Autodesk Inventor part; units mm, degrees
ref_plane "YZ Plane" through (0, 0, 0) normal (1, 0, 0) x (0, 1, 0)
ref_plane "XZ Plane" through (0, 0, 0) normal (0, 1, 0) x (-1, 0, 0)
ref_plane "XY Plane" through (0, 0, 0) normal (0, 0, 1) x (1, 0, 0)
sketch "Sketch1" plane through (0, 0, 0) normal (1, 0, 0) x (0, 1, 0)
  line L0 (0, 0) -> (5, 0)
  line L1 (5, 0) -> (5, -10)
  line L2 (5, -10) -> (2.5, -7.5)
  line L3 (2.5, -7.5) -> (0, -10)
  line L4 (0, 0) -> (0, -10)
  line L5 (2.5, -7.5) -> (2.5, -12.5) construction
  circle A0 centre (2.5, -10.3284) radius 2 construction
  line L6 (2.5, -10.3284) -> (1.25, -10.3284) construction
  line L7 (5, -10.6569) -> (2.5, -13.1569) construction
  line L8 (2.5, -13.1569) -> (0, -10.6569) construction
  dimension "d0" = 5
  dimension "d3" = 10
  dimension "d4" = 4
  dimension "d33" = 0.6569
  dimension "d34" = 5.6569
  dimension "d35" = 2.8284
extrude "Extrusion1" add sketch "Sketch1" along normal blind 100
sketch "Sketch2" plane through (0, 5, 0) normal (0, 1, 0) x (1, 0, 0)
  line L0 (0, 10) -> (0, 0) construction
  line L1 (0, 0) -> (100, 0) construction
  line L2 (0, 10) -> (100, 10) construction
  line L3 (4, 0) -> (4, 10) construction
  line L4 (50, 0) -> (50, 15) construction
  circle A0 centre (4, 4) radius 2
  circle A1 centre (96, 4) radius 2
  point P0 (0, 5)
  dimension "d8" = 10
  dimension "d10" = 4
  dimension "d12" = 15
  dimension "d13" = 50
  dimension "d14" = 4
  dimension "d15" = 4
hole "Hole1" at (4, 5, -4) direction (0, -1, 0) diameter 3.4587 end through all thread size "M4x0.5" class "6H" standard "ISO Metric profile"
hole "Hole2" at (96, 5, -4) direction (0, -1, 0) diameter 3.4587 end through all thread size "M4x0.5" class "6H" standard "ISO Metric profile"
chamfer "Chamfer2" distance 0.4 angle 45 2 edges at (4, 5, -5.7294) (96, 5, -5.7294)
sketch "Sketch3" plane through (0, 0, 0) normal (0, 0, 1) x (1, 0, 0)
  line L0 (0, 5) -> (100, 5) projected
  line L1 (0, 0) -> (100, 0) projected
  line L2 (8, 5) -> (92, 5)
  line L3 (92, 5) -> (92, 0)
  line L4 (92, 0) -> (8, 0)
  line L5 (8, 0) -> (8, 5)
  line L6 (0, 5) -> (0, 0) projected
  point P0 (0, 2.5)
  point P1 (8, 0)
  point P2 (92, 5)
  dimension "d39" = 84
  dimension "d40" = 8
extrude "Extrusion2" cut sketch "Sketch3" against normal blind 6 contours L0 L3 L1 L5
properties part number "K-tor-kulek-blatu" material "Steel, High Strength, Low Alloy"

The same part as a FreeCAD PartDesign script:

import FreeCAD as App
import Part
import Sketcher
Q = App.Units.Quantity


def edges_at(feature, points):
    """Names of the edges that pass closest to the given points."""
    edges = feature.Shape.Edges
    near = lambda p: min(range(len(edges)), key=lambda i: edges[i].distToShape(Part.Vertex(*p))[0])
    return sorted({f"Edge{near(p) + 1}" for p in points})

doc = App.newDocument("Part")
params = doc.addObject("Spreadsheet::Sheet", "Params")
for row, (alias, value) in enumerate([
    ("sketch1_width", "5 mm"),
    ("sketch1_height", "10 mm"),
    ("pad1_length", "100 mm"),
    ("hole_diameter", "3.4587 mm"),
    ("hole2_diameter", "3.4587 mm"),
    ("chamfer_size", "0.4 mm"),
    ("sketch4_width", "84 mm"),
    ("sketch4_height", "5 mm"),
    ("pocket1_length", "6 mm"),
], start=1):
    params.set(f"A{row}", alias)
    params.set(f"B{row}", "=" + value)
    params.setAlias(f"B{row}", alias)

body = doc.addObject("PartDesign::Body", "Body")

sketch1 = body.newObject("Sketcher::SketchObject", "Sketch")
sketch1.AttachmentSupport = (doc.getObject("YZ_Plane"), [""])
sketch1.MapMode = "FlatFace"
sketch1.addGeometry(Part.LineSegment(App.Vector(5, 0, 0), App.Vector(0, 0, 0)), False)
sketch1.addGeometry(Part.LineSegment(App.Vector(0, 0, 0), App.Vector(0, -10, 0)), False)
sketch1.addGeometry(Part.LineSegment(App.Vector(0, -10, 0), App.Vector(2.5, -7.5, 0)), False)
sketch1.addGeometry(Part.LineSegment(App.Vector(2.5, -7.5, 0), App.Vector(5, -10, 0)), False)
sketch1.addGeometry(Part.LineSegment(App.Vector(5, -10, 0), App.Vector(5, 0, 0)), False)
sketch1.addConstraint(Sketcher.Constraint("Coincident", 0, 2, 1, 1))
sketch1.addConstraint(Sketcher.Constraint("Coincident", 1, 2, 2, 1))
sketch1.addConstraint(Sketcher.Constraint("Coincident", 2, 2, 3, 1))
sketch1.addConstraint(Sketcher.Constraint("Coincident", 3, 2, 4, 1))
sketch1.addConstraint(Sketcher.Constraint("Coincident", 4, 2, 0, 1))
sketch1.addConstraint(Sketcher.Constraint("Horizontal", 0))
sketch1.addConstraint(Sketcher.Constraint("Vertical", 1))
sketch1.addConstraint(Sketcher.Constraint("Vertical", 4))
sketch1.addConstraint(Sketcher.Constraint("Coincident", 0, 2, -1, 1))
sketch1.addConstraint(Sketcher.Constraint("Perpendicular", 2, 3))
sketch1.addConstraint(Sketcher.Constraint("Horizontal", 1, 2, 3, 2))
sketch1.addConstraint(Sketcher.Constraint("Equal", 2, 3))
sketch1.addConstraint(Sketcher.Constraint("DistanceX", 0, 2, 0, 1, Q("5 mm")))
sketch1.addConstraint(Sketcher.Constraint("DistanceY", 1, 2, 1, 1, Q("10 mm")))
sketch1.setExpression("Constraints[12]", "Params.sketch1_width")
sketch1.setExpression("Constraints[13]", "Params.sketch1_height")
pad1 = body.newObject("PartDesign::Pad", "Pad")
pad1.Profile = sketch1
pad1.setExpression("Length", "Params.pad1_length")

sketch2 = body.newObject("Sketcher::SketchObject", "Sketch001")
sketch2.AttachmentSupport = (doc.getObject("XZ_Plane"), [""])
sketch2.MapMode = "FlatFace"
sketch2.AttachmentOffset = App.Placement(App.Vector(0, 0, -5), App.Rotation())
sketch2.addGeometry(Part.Circle(App.Vector(4, -4, 0), App.Vector(0, 0, 1), 1.7), False)
sketch2.addConstraint(Sketcher.Constraint("DistanceX", -1, 1, 0, 3, Q("4 mm")))
sketch2.addConstraint(Sketcher.Constraint("DistanceY", 0, 3, -1, 1, Q("4 mm")))
sketch2.addConstraint(Sketcher.Constraint("Diameter", 0, Q("3.4587 mm")))
doc.recompute()
hole = body.newObject("PartDesign::Hole", "Hole")
hole.Profile = sketch2
hole.ThreadType = "None"
hole.setExpression("Diameter", "Params.hole_diameter")
hole.DepthType = "ThroughAll"
hole.Reversed = True

sketch3 = body.newObject("Sketcher::SketchObject", "Sketch002")
sketch3.AttachmentSupport = (doc.getObject("XZ_Plane"), [""])
sketch3.MapMode = "FlatFace"
sketch3.AttachmentOffset = App.Placement(App.Vector(0, 0, -5), App.Rotation())
sketch3.addGeometry(Part.Circle(App.Vector(96, -4, 0), App.Vector(0, 0, 1), 1.7), False)
sketch3.addConstraint(Sketcher.Constraint("DistanceX", -1, 1, 0, 3, Q("96 mm")))
sketch3.addConstraint(Sketcher.Constraint("DistanceY", 0, 3, -1, 1, Q("4 mm")))
sketch3.addConstraint(Sketcher.Constraint("Diameter", 0, Q("3.4587 mm")))
doc.recompute()
hole2 = body.newObject("PartDesign::Hole", "Hole001")
hole2.Profile = sketch3
hole2.ThreadType = "None"
hole2.setExpression("Diameter", "Params.hole2_diameter")
hole2.DepthType = "ThroughAll"
hole2.Reversed = True
doc.recompute()

chamfer = body.newObject("PartDesign::Chamfer", "Chamfer")
chamfer.Base = (hole2, edges_at(hole2, [(4, 5, -5.729), (96, 5, -5.729)]))
chamfer.setExpression("Size", "Params.chamfer_size")

sketch4 = body.newObject("Sketcher::SketchObject", "Sketch003")
sketch4.AttachmentSupport = (doc.getObject("XY_Plane"), [""])
sketch4.MapMode = "FlatFace"
sketch4.addGeometry(Part.LineSegment(App.Vector(92, 5, 0), App.Vector(8, 5, 0)), False)
sketch4.addGeometry(Part.LineSegment(App.Vector(8, 5, 0), App.Vector(8, 0, 0)), False)
sketch4.addGeometry(Part.LineSegment(App.Vector(8, 0, 0), App.Vector(92, 0, 0)), False)
sketch4.addGeometry(Part.LineSegment(App.Vector(92, 0, 0), App.Vector(92, 5, 0)), False)
sketch4.addConstraint(Sketcher.Constraint("Coincident", 0, 2, 1, 1))
sketch4.addConstraint(Sketcher.Constraint("Coincident", 1, 2, 2, 1))
sketch4.addConstraint(Sketcher.Constraint("Coincident", 2, 2, 3, 1))
sketch4.addConstraint(Sketcher.Constraint("Coincident", 3, 2, 0, 1))
sketch4.addConstraint(Sketcher.Constraint("Horizontal", 0))
sketch4.addConstraint(Sketcher.Constraint("Vertical", 1))
sketch4.addConstraint(Sketcher.Constraint("Horizontal", 2))
sketch4.addConstraint(Sketcher.Constraint("Vertical", 3))
sketch4.addConstraint(Sketcher.Constraint("PointOnObject", 1, 2, -1))
sketch4.addConstraint(Sketcher.Constraint("DistanceX", 0, 2, 0, 1, Q("84 mm")))
sketch4.addConstraint(Sketcher.Constraint("DistanceX", -1, 1, 0, 2, Q("8 mm")))
sketch4.addConstraint(Sketcher.Constraint("DistanceY", 1, 2, 1, 1, Q("5 mm")))
sketch4.setExpression("Constraints[9]", "Params.sketch4_width")
sketch4.setExpression("Constraints[11]", "Params.sketch4_height")
pocket1 = body.newObject("PartDesign::Pocket", "Pocket")
pocket1.Profile = sketch4
pocket1.setExpression("Length", "Params.pocket1_length")

doc.recompute()
